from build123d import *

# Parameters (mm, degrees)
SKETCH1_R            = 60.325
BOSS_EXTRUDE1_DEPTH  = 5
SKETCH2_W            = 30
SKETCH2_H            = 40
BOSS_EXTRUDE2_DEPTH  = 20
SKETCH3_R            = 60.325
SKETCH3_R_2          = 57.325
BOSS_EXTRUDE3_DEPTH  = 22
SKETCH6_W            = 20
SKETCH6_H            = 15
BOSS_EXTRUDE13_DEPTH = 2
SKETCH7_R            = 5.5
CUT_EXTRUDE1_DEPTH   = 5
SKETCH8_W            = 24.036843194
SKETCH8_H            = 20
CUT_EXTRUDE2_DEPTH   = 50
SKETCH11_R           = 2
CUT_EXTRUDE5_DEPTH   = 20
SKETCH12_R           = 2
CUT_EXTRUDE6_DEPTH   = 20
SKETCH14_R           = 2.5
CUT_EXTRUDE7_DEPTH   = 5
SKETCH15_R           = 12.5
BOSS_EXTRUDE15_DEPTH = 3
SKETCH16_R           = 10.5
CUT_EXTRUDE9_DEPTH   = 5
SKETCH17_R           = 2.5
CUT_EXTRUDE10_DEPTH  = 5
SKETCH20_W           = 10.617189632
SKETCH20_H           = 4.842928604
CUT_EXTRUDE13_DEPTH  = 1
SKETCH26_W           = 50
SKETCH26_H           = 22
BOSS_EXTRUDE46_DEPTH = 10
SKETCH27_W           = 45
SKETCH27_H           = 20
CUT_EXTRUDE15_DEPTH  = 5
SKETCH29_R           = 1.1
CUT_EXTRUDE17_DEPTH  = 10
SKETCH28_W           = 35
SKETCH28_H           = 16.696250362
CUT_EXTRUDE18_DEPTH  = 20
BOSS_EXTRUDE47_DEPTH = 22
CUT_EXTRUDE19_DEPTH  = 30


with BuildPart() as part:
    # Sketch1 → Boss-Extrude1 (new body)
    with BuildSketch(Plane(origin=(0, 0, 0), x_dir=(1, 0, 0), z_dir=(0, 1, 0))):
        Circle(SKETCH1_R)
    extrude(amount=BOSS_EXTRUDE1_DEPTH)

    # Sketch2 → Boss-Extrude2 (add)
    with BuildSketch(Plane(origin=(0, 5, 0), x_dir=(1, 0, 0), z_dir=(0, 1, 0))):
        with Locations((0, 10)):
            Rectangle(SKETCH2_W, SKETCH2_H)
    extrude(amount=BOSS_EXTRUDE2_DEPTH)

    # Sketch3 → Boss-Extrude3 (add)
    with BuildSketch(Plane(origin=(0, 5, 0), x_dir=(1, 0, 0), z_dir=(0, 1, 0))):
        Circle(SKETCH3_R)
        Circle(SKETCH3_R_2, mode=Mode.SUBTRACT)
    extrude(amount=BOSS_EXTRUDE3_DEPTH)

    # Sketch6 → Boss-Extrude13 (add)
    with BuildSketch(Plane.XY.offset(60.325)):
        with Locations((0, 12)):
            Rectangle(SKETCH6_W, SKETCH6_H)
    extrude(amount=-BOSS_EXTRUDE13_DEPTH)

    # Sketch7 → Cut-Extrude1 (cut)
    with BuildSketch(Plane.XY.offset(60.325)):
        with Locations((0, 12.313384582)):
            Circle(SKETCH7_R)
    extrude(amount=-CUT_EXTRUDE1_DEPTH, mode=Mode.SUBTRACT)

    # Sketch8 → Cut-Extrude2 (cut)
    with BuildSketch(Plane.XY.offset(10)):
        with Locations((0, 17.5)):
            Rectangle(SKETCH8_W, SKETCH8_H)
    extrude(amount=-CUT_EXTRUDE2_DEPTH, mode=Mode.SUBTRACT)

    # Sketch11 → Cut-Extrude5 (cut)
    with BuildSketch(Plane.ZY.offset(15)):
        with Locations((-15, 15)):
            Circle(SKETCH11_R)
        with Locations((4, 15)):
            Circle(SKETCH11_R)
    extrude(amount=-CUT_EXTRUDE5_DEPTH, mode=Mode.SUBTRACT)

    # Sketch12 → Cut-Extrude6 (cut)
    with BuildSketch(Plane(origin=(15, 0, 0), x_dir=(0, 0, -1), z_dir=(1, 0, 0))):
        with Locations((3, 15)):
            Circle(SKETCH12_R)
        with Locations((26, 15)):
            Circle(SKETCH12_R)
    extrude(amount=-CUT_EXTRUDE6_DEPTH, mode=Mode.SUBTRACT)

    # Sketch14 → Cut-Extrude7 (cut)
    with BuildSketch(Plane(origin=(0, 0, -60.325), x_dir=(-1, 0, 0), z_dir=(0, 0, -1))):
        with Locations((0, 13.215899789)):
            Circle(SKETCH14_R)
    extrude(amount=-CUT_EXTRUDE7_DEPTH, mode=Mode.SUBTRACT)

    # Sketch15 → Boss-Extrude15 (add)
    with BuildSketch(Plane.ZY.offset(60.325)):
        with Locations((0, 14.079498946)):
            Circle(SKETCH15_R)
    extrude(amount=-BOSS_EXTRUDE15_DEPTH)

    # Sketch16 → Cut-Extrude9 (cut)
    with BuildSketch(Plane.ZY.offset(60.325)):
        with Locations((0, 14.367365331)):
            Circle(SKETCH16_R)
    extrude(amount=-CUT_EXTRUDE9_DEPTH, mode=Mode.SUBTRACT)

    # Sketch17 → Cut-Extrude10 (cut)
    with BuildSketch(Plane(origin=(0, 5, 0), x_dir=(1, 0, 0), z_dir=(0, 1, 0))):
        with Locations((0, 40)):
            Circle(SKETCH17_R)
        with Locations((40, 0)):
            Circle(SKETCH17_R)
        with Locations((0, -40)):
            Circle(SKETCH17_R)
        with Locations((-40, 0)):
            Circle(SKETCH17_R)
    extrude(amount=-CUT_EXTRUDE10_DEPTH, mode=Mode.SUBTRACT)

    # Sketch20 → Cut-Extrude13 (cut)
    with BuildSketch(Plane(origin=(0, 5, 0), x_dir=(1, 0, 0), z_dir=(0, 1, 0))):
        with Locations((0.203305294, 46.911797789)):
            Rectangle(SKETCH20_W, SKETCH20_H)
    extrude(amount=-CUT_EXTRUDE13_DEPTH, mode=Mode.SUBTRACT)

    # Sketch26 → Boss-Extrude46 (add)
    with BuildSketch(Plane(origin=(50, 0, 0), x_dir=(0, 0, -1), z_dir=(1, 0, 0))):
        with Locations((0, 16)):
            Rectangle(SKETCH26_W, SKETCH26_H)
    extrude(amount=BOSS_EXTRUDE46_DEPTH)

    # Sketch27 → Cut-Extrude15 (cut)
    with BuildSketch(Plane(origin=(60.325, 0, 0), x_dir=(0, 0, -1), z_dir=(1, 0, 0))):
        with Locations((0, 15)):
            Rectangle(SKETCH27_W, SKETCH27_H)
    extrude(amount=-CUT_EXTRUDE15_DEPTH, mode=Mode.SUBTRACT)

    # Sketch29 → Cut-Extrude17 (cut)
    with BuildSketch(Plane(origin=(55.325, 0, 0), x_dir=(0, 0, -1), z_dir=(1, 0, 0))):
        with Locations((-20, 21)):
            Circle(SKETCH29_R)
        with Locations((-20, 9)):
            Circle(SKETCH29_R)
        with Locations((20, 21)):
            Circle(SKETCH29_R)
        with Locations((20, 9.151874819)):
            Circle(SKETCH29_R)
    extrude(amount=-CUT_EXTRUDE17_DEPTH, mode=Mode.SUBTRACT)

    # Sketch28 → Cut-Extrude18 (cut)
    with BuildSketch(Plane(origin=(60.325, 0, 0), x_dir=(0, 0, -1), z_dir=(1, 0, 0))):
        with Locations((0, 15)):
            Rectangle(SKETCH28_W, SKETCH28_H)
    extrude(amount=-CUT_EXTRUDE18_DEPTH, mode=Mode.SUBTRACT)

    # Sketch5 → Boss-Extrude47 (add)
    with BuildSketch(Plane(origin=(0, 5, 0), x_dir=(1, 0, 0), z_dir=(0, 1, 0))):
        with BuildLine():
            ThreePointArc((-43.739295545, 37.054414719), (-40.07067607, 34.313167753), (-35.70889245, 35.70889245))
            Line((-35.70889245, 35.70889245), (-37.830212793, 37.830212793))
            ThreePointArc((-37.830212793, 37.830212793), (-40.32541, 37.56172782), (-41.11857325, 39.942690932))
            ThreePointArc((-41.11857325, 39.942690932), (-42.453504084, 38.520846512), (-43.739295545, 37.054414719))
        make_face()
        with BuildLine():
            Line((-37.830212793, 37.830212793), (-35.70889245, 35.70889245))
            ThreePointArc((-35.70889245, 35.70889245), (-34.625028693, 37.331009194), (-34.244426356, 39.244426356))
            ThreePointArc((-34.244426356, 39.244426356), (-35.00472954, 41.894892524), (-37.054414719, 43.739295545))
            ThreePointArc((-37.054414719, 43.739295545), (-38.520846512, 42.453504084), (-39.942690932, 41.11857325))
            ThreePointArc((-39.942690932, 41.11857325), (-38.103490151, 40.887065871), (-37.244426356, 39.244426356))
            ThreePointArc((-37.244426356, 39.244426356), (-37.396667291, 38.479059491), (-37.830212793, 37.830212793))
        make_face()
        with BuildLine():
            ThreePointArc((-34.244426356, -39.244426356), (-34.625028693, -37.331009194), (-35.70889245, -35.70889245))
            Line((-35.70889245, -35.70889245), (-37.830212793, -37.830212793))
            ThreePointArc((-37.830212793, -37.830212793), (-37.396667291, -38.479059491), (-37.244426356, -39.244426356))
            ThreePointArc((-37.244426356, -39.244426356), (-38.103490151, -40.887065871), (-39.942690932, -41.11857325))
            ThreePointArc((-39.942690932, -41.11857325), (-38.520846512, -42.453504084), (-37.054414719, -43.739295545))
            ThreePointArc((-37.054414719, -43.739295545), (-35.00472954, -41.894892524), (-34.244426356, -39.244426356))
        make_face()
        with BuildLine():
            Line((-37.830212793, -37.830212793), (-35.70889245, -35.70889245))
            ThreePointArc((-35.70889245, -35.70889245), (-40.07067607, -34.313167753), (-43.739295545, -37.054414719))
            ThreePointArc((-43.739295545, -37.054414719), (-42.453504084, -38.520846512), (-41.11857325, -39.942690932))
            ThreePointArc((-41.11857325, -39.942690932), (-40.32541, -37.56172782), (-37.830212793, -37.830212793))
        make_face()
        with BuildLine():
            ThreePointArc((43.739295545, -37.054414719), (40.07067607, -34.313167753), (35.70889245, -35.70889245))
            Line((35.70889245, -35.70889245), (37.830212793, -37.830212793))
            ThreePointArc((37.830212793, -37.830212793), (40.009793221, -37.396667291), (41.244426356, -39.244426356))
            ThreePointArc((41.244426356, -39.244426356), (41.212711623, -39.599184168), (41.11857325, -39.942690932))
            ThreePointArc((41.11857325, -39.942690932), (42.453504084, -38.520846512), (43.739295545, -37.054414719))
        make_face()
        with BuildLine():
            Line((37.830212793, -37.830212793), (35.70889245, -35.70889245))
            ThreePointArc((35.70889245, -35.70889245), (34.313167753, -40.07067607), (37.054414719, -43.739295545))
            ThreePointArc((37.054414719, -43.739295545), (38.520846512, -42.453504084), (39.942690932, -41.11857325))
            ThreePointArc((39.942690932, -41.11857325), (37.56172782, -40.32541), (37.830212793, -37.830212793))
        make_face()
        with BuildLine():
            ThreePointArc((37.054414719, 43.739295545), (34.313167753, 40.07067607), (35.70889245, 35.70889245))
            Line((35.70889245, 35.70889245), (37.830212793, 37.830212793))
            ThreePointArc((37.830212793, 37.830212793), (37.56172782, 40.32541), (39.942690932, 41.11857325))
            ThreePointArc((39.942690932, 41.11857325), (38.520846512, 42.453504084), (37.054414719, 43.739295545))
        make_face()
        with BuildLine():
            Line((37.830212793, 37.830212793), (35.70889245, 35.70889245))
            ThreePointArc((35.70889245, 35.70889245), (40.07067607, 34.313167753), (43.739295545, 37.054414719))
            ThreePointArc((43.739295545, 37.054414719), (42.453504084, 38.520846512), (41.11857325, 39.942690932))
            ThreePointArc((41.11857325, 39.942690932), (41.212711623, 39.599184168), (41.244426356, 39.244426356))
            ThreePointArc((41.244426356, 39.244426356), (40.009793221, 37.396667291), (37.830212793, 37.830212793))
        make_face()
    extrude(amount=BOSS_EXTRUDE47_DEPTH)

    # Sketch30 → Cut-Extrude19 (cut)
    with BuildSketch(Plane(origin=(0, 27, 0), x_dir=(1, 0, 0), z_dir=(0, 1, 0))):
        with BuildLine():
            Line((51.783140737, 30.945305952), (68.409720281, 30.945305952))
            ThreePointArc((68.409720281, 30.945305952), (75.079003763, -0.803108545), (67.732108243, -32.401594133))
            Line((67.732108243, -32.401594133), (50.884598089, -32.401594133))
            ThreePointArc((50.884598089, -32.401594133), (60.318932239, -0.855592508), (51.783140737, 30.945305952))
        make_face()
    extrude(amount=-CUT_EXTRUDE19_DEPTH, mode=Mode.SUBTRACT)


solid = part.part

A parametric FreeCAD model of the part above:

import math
import FreeCAD as App
import Part
import Sketcher
Q = App.Units.Quantity

doc = App.newDocument("Part")
body = doc.addObject("PartDesign::Body", "Body")

# Sketch on XZ plane
sketch1 = body.newObject("Sketcher::SketchObject", "Sketch")
sketch1.AttachmentSupport = (doc.getObject("XZ_Plane"), [""])
sketch1.MapMode = "FlatFace"
sketch1.addGeometry(Part.Circle(App.Vector(0, 0, 0), App.Vector(0, 0, 1), 60.325), False)
sketch1.addConstraint(Sketcher.Constraint("Coincident", 0, 3, -1, 1))
sketch1.addConstraint(Sketcher.Constraint("Diameter", 0, Q("120.65 mm")))
pad1 = body.newObject("PartDesign::Pad", "Pad")
pad1.Profile = sketch1
pad1.Length = 5
pad1.Reversed = True

# Sketch on XZ plane
sketch2 = body.newObject("Sketcher::SketchObject", "Sketch001")
sketch2.AttachmentSupport = (doc.getObject("XZ_Plane"), [""])
sketch2.MapMode = "FlatFace"
sketch2.AttachmentOffset = App.Placement(App.Vector(0, 0, -5), App.Rotation())
sketch2.addGeometry(Part.LineSegment(App.Vector(-15, -30, 0), App.Vector(-15, 10, 0)), False)
sketch2.addGeometry(Part.LineSegment(App.Vector(-15, 10, 0), App.Vector(15, 10, 0)), False)
sketch2.addGeometry(Part.LineSegment(App.Vector(15, 10, 0), App.Vector(15, -30, 0)), False)
sketch2.addGeometry(Part.LineSegment(App.Vector(15, -30, 0), App.Vector(-15, -30, 0)), False)
sketch2.addConstraint(Sketcher.Constraint("Coincident", 0, 2, 1, 1))
sketch2.addConstraint(Sketcher.Constraint("Coincident", 1, 2, 2, 1))
sketch2.addConstraint(Sketcher.Constraint("Coincident", 2, 2, 3, 1))
sketch2.addConstraint(Sketcher.Constraint("Coincident", 3, 2, 0, 1))
sketch2.addConstraint(Sketcher.Constraint("Vertical", 0))
sketch2.addConstraint(Sketcher.Constraint("Horizontal", 1))
sketch2.addConstraint(Sketcher.Constraint("Vertical", 2))
sketch2.addConstraint(Sketcher.Constraint("Horizontal", 3))
sketch2.addConstraint(Sketcher.Constraint("DistanceX", 1, 1, 1, 2, Q("30 mm")))
sketch2.addConstraint(Sketcher.Constraint("DistanceY", 0, 1, 0, 2, Q("40 mm")))
sketch2.addConstraint(Sketcher.Constraint("DistanceX", 0, 2, -1, 1, Q("15 mm")))
sketch2.addConstraint(Sketcher.Constraint("DistanceY", -1, 1, 0, 2, Q("10 mm")))
pad2 = body.newObject("PartDesign::Pad", "Pad001")
pad2.Profile = sketch2
pad2.Length = 20
pad2.Reversed = True

# Sketch on XZ plane
sketch3 = body.newObject("Sketcher::SketchObject", "Sketch002")
sketch3.AttachmentSupport = (doc.getObject("XZ_Plane"), [""])
sketch3.MapMode = "FlatFace"
sketch3.AttachmentOffset = App.Placement(App.Vector(0, 0, -5), App.Rotation())
sketch3.addGeometry(Part.Circle(App.Vector(0, 0, 0), App.Vector(0, 0, 1), 60.325), False)
sketch3.addGeometry(Part.Circle(App.Vector(0, 0, 0), App.Vector(0, 0, 1), 57.325), False)
sketch3.addConstraint(Sketcher.Constraint("Coincident", 0, 3, -1, 1))
sketch3.addConstraint(Sketcher.Constraint("Coincident", 1, 3, -1, 1))
sketch3.addConstraint(Sketcher.Constraint("Diameter", 0, Q("120.65 mm")))
sketch3.addConstraint(Sketcher.Constraint("Diameter", 1, Q("114.65 mm")))
pad3 = body.newObject("PartDesign::Pad", "Pad002")
pad3.Profile = sketch3
pad3.Length = 22
pad3.Reversed = True

# Sketch on XY plane
sketch4 = body.newObject("Sketcher::SketchObject", "Sketch003")
sketch4.AttachmentSupport = (doc.getObject("XY_Plane"), [""])
sketch4.MapMode = "FlatFace"
sketch4.AttachmentOffset = App.Placement(App.Vector(0, 0, 60.325), App.Rotation())
sketch4.addGeometry(Part.LineSegment(App.Vector(-10, 19.5, 0), App.Vector(-10, 4.5, 0)), False)
sketch4.addGeometry(Part.LineSegment(App.Vector(-10, 4.5, 0), App.Vector(10, 4.5, 0)), False)
sketch4.addGeometry(Part.LineSegment(App.Vector(10, 4.5, 0), App.Vector(10, 19.5, 0)), False)
sketch4.addGeometry(Part.LineSegment(App.Vector(10, 19.5, 0), App.Vector(-10, 19.5, 0)), False)
sketch4.addConstraint(Sketcher.Constraint("Coincident", 0, 2, 1, 1))
sketch4.addConstraint(Sketcher.Constraint("Coincident", 1, 2, 2, 1))
sketch4.addConstraint(Sketcher.Constraint("Coincident", 2, 2, 3, 1))
sketch4.addConstraint(Sketcher.Constraint("Coincident", 3, 2, 0, 1))
sketch4.addConstraint(Sketcher.Constraint("Vertical", 0))
sketch4.addConstraint(Sketcher.Constraint("Horizontal", 1))
sketch4.addConstraint(Sketcher.Constraint("Vertical", 2))
sketch4.addConstraint(Sketcher.Constraint("Horizontal", 3))
sketch4.addConstraint(Sketcher.Constraint("DistanceX", 1, 1, 1, 2, Q("20 mm")))
sketch4.addConstraint(Sketcher.Constraint("DistanceY", 0, 2, 0, 1, Q("15 mm")))
sketch4.addConstraint(Sketcher.Constraint("DistanceX", 0, 2, -1, 1, Q("10 mm")))
sketch4.addConstraint(Sketcher.Constraint("DistanceY", -1, 1, 0, 2, Q("4.5 mm")))
pad4 = body.newObject("PartDesign::Pad", "Pad003")
pad4.Profile = sketch4
pad4.Length = 2
pad4.Reversed = True

# Sketch on XY plane
sketch5 = body.newObject("Sketcher::SketchObject", "Sketch004")
sketch5.AttachmentSupport = (doc.getObject("XY_Plane"), [""])
sketch5.MapMode = "FlatFace"
sketch5.AttachmentOffset = App.Placement(App.Vector(0, 0, 60.325), App.Rotation())
sketch5.addGeometry(Part.Circle(App.Vector(0, 12.313385, 0), App.Vector(0, 0, 1), 5.5), False)
sketch5.addConstraint(Sketcher.Constraint("PointOnObject", 0, 3, -2))
sketch5.addConstraint(Sketcher.Constraint("Diameter", 0, Q("11 mm")))
sketch5.addConstraint(Sketcher.Constraint("DistanceY", -1, 1, 0, 3, Q("12.313385 mm")))
pocket1 = body.newObject("PartDesign::Pocket", "Pocket")
pocket1.Profile = sketch5
pocket1.Length = 5

# Sketch on XY plane
sketch6 = body.newObject("Sketcher::SketchObject", "Sketch005")
sketch6.AttachmentSupport = (doc.getObject("XY_Plane"), [""])
sketch6.MapMode = "FlatFace"
sketch6.AttachmentOffset = App.Placement(App.Vector(0, 0, 10), App.Rotation())
sketch6.addGeometry(Part.LineSegment(App.Vector(-12.018422, 27.5, 0), App.Vector(-12.018422, 7.5, 0)), False)
sketch6.addGeometry(Part.LineSegment(App.Vector(-12.018422, 7.5, 0), App.Vector(12.018422, 7.5, 0)), False)
sketch6.addGeometry(Part.LineSegment(App.Vector(12.018422, 7.5, 0), App.Vector(12.018422, 27.5, 0)), False)
sketch6.addGeometry(Part.LineSegment(App.Vector(12.018422, 27.5, 0), App.Vector(-12.018422, 27.5, 0)), False)
sketch6.addConstraint(Sketcher.Constraint("Coincident", 0, 2, 1, 1))
sketch6.addConstraint(Sketcher.Constraint("Coincident", 1, 2, 2, 1))
sketch6.addConstraint(Sketcher.Constraint("Coincident", 2, 2, 3, 1))
sketch6.addConstraint(Sketcher.Constraint("Coincident", 3, 2, 0, 1))
sketch6.addConstraint(Sketcher.Constraint("Vertical", 0))
sketch6.addConstraint(Sketcher.Constraint("Horizontal", 1))
sketch6.addConstraint(Sketcher.Constraint("Vertical", 2))
sketch6.addConstraint(Sketcher.Constraint("Horizontal", 3))
sketch6.addConstraint(Sketcher.Constraint("DistanceY", 0, 2, 0, 1, Q("20 mm")))
sketch6.addConstraint(Sketcher.Constraint("DistanceY", -1, 1, 0, 2, Q("7.5 mm")))
sketch6.addConstraint(Sketcher.Constraint("DistanceX", 1, 1, 1, 2, Q("24.036843 mm")))
sketch6.addConstraint(Sketcher.Constraint("DistanceX", 0, 2, -1, 1, Q("12.018422 mm")))
pocket2 = body.newObject("PartDesign::Pocket", "Pocket001")
pocket2.Profile = sketch6
pocket2.Length = 50

# Sketch on YZ plane
sketch7 = body.newObject("Sketcher::SketchObject", "Sketch006")
sketch7.AttachmentSupport = (doc.getObject("YZ_Plane"), [""])
sketch7.MapMode = "FlatFace"
sketch7.AttachmentOffset = App.Placement(App.Vector(0, 0, -15), App.Rotation())
sketch7.addGeometry(Part.Circle(App.Vector(15, -15, 0), App.Vector(0, 0, 1), 2), False)
sketch7.addGeometry(Part.Circle(App.Vector(15, 4, 0), App.Vector(0, 0, 1), 2), False)
sketch7.addConstraint(Sketcher.Constraint("Equal", 0, 1))
sketch7.addConstraint(Sketcher.Constraint("Vertical", 0, 3, 1, 3))
sketch7.addConstraint(Sketcher.Constraint("Diameter", 0, Q("4 mm")))
sketch7.addConstraint(Sketcher.Constraint("DistanceX", -1, 1, 0, 3, Q("15 mm")))
sketch7.addConstraint(Sketcher.Constraint("DistanceY", 0, 3, -1, 1, Q("15 mm")))
sketch7.addConstraint(Sketcher.Constraint("DistanceY", -1, 1, 1, 3, Q("4 mm")))
pocket3 = body.newObject("PartDesign::Pocket", "Pocket002")
pocket3.Profile = sketch7
pocket3.Length = 20
pocket3.Reversed = True

# Sketch on YZ plane
sketch8 = body.newObject("Sketcher::SketchObject", "Sketch007")
sketch8.AttachmentSupport = (doc.getObject("YZ_Plane"), [""])
sketch8.MapMode = "FlatFace"
sketch8.AttachmentOffset = App.Placement(App.Vector(0, 0, 15), App.Rotation())
sketch8.addGeometry(Part.Circle(App.Vector(15, -3, 0), App.Vector(0, 0, 1), 2), False)
sketch8.addGeometry(Part.Circle(App.Vector(15, -26, 0), App.Vector(0, 0, 1), 2), False)
sketch8.addConstraint(Sketcher.Constraint("Equal", 0, 1))
sketch8.addConstraint(Sketcher.Constraint("Vertical", 0, 3, 1, 3))
sketch8.addConstraint(Sketcher.Constraint("Diameter", 0, Q("4 mm")))
sketch8.addConstraint(Sketcher.Constraint("DistanceX", -1, 1, 0, 3, Q("15 mm")))
sketch8.addConstraint(Sketcher.Constraint("DistanceY", 0, 3, -1, 1, Q("3 mm")))
sketch8.addConstraint(Sketcher.Constraint("DistanceY", 1, 3, -1, 1, Q("26 mm")))
pocket4 = body.newObject("PartDesign::Pocket", "Pocket003")
pocket4.Profile = sketch8
pocket4.Length = 20

# Sketch on XY plane
sketch9 = body.newObject("Sketcher::SketchObject", "Sketch008")
sketch9.AttachmentSupport = (doc.getObject("XY_Plane"), [""])
sketch9.MapMode = "FlatFace"
sketch9.AttachmentOffset = App.Placement(App.Vector(0, 0, -60.325), App.Rotation())
sketch9.addGeometry(Part.Circle(App.Vector(0, 13.2159, 0), App.Vector(0, 0, 1), 2.5), False)
sketch9.addConstraint(Sketcher.Constraint("PointOnObject", 0, 3, -2))
sketch9.addConstraint(Sketcher.Constraint("Diameter", 0, Q("5 mm")))
sketch9.addConstraint(Sketcher.Constraint("DistanceY", -1, 1, 0, 3, Q("13.2159 mm")))
pocket5 = body.newObject("PartDesign::Pocket", "Pocket004")
pocket5.Profile = sketch9
pocket5.Length = 5
pocket5.Reversed = True

# Sketch on YZ plane
sketch10 = body.newObject("Sketcher::SketchObject", "Sketch009")
sketch10.AttachmentSupport = (doc.getObject("YZ_Plane"), [""])
sketch10.MapMode = "FlatFace"
sketch10.AttachmentOffset = App.Placement(App.Vector(0, 0, -60.325), App.Rotation())
sketch10.addGeometry(Part.Circle(App.Vector(14.079499, 0, 0), App.Vector(0, 0, 1), 12.5), False)
sketch10.addConstraint(Sketcher.Constraint("PointOnObject", 0, 3, -1))
sketch10.addConstraint(Sketcher.Constraint("Diameter", 0, Q("25 mm")))
sketch10.addConstraint(Sketcher.Constraint("DistanceX", -1, 1, 0, 3, Q("14.079499 mm")))
pad5 = body.newObject("PartDesign::Pad", "Pad004")
pad5.Profile = sketch10
pad5.Length = 3

# Sketch on YZ plane
sketch11 = body.newObject("Sketcher::SketchObject", "Sketch010")
sketch11.AttachmentSupport = (doc.getObject("YZ_Plane"), [""])
sketch11.MapMode = "FlatFace"
sketch11.AttachmentOffset = App.Placement(App.Vector(0, 0, -60.325), App.Rotation())
sketch11.addGeometry(Part.Circle(App.Vector(14.367365, 0, 0), App.Vector(0, 0, 1), 10.5), False)
sketch11.addConstraint(Sketcher.Constraint("PointOnObject", 0, 3, -1))
sketch11.addConstraint(Sketcher.Constraint("Diameter", 0, Q("21 mm")))
sketch11.addConstraint(Sketcher.Constraint("DistanceX", -1, 1, 0, 3, Q("14.367365 mm")))
pocket6 = body.newObject("PartDesign::Pocket", "Pocket005")
pocket6.Profile = sketch11
pocket6.Length = 5
pocket6.Reversed = True

# Sketch on XZ plane
sketch12 = body.newObject("Sketcher::SketchObject", "Sketch011")
sketch12.AttachmentSupport = (doc.getObject("XZ_Plane"), [""])
sketch12.MapMode = "FlatFace"
sketch12.AttachmentOffset = App.Placement(App.Vector(0, 0, -5), App.Rotation())
sketch12.addGeometry(Part.Circle(App.Vector(0, -40, 0), App.Vector(0, 0, 1), 2.5), False)
sketch12.addGeometry(Part.Circle(App.Vector(40, 0, 0), App.Vector(0, 0, 1), 2.5), False)
sketch12.addGeometry(Part.Circle(App.Vector(0, 40, 0), App.Vector(0, 0, 1), 2.5), False)
sketch12.addGeometry(Part.Circle(App.Vector(-40, 0, 0), App.Vector(0, 0, 1), 2.5), False)
sketch12.addConstraint(Sketcher.Constraint("Equal", 0, 1))
sketch12.addConstraint(Sketcher.Constraint("Equal", 1, 2))
sketch12.addConstraint(Sketcher.Constraint("Equal", 2, 3))
sketch12.addConstraint(Sketcher.Constraint("Symmetric", 0, 3, 2, 3, -1, 1))
sketch12.addConstraint(Sketcher.Constraint("Symmetric", 1, 3, 3, 3, -1, 1))
sketch12.addConstraint(Sketcher.Constraint("PointOnObject", 0, 3, -2))
sketch12.addConstraint(Sketcher.Constraint("PointOnObject", 1, 3, -1))
sketch12.addConstraint(Sketcher.Constraint("Diameter", 0, Q("5 mm")))
sketch12.addConstraint(Sketcher.Constraint("DistanceY", 0, 3, -1, 1, Q("40 mm")))
sketch12.addConstraint(Sketcher.Constraint("DistanceX", -1, 1, 1, 3, Q("40 mm")))
pocket7 = body.newObject("PartDesign::Pocket", "Pocket006")
pocket7.Profile = sketch12
pocket7.Length = 5
pocket7.Reversed = True

# Sketch on XZ plane
sketch13 = body.newObject("Sketcher::SketchObject", "Sketch012")
sketch13.AttachmentSupport = (doc.getObject("XZ_Plane"), [""])
sketch13.MapMode = "FlatFace"
sketch13.AttachmentOffset = App.Placement(App.Vector(0, 0, -5), App.Rotation())
sketch13.addGeometry(Part.LineSegment(App.Vector(-5.10529, -49.333262, 0), App.Vector(-5.10529, -44.490333, 0)), False)
sketch13.addGeometry(Part.LineSegment(App.Vector(-5.10529, -44.490333, 0), App.Vector(5.5119, -44.490333, 0)), False)
sketch13.addGeometry(Part.LineSegment(App.Vector(5.5119, -44.490333, 0), App.Vector(5.5119, -49.333262, 0)), False)
sketch13.addGeometry(Part.LineSegment(App.Vector(5.5119, -49.333262, 0), App.Vector(-5.10529, -49.333262, 0)), False)
sketch13.addConstraint(Sketcher.Constraint("Coincident", 0, 2, 1, 1))
sketch13.addConstraint(Sketcher.Constraint("Coincident", 1, 2, 2, 1))
sketch13.addConstraint(Sketcher.Constraint("Coincident", 2, 2, 3, 1))
sketch13.addConstraint(Sketcher.Constraint("Coincident", 3, 2, 0, 1))
sketch13.addConstraint(Sketcher.Constraint("Vertical", 0))
sketch13.addConstraint(Sketcher.Constraint("Horizontal", 1))
sketch13.addConstraint(Sketcher.Constraint("Vertical", 2))
sketch13.addConstraint(Sketcher.Constraint("Horizontal", 3))
sketch13.addConstraint(Sketcher.Constraint("DistanceX", 1, 1, 1, 2, Q("10.61719 mm")))
sketch13.addConstraint(Sketcher.Constraint("DistanceY", 0, 1, 0, 2, Q("4.842929 mm")))
sketch13.addConstraint(Sketcher.Constraint("DistanceX", -1, 1, 1, 2, Q("5.5119 mm")))
sketch13.addConstraint(Sketcher.Constraint("DistanceY", 0, 2, -1, 1, Q("44.490333 mm")))
pocket8 = body.newObject("PartDesign::Pocket", "Pocket007")
pocket8.Profile = sketch13
pocket8.Length = 1
pocket8.Reversed = True

# Sketch on YZ plane
sketch14 = body.newObject("Sketcher::SketchObject", "Sketch013")
sketch14.AttachmentSupport = (doc.getObject("YZ_Plane"), [""])
sketch14.MapMode = "FlatFace"
sketch14.AttachmentOffset = App.Placement(App.Vector(0, 0, 50), App.Rotation())
sketch14.addGeometry(Part.LineSegment(App.Vector(27, 25, 0), App.Vector(5, 25, 0)), False)
sketch14.addGeometry(Part.LineSegment(App.Vector(5, 25, 0), App.Vector(5, -25, 0)), False)
sketch14.addGeometry(Part.LineSegment(App.Vector(5, -25, 0), App.Vector(27, -25, 0)), False)
sketch14.addGeometry(Part.LineSegment(App.Vector(27, -25, 0), App.Vector(27, 25, 0)), False)
sketch14.addConstraint(Sketcher.Constraint("Coincident", 0, 2, 1, 1))
sketch14.addConstraint(Sketcher.Constraint("Coincident", 1, 2, 2, 1))
sketch14.addConstraint(Sketcher.Constraint("Coincident", 2, 2, 3, 1))
sketch14.addConstraint(Sketcher.Constraint("Coincident", 3, 2, 0, 1))
sketch14.addConstraint(Sketcher.Constraint("Horizontal", 0))
sketch14.addConstraint(Sketcher.Constraint("Vertical", 1))
sketch14.addConstraint(Sketcher.Constraint("Horizontal", 2))
sketch14.addConstraint(Sketcher.Constraint("Vertical", 3))
sketch14.addConstraint(Sketcher.Constraint("DistanceX", 0, 2, 0, 1, Q("22 mm")))
sketch14.addConstraint(Sketcher.Constraint("DistanceY", 1, 2, 1, 1, Q("50 mm")))
sketch14.addConstraint(Sketcher.Constraint("DistanceX", -1, 1, 0, 2, Q("5 mm")))
sketch14.addConstraint(Sketcher.Constraint("DistanceY", -1, 1, 0, 2, Q("25 mm")))
pad6 = body.newObject("PartDesign::Pad", "Pad005")
pad6.Profile = sketch14
pad6.Length = 10

# Sketch on YZ plane
sketch15 = body.newObject("Sketcher::SketchObject", "Sketch014")
sketch15.AttachmentSupport = (doc.getObject("YZ_Plane"), [""])
sketch15.MapMode = "FlatFace"
sketch15.AttachmentOffset = App.Placement(App.Vector(0, 0, 60.325), App.Rotation())
sketch15.addGeometry(Part.LineSegment(App.Vector(25, 22.5, 0), App.Vector(5, 22.5, 0)), False)
sketch15.addGeometry(Part.LineSegment(App.Vector(5, 22.5, 0), App.Vector(5, -22.5, 0)), False)
sketch15.addGeometry(Part.LineSegment(App.Vector(5, -22.5, 0), App.Vector(25, -22.5, 0)), False)
sketch15.addGeometry(Part.LineSegment(App.Vector(25, -22.5, 0), App.Vector(25, 22.5, 0)), False)
sketch15.addConstraint(Sketcher.Constraint("Coincident", 0, 2, 1, 1))
sketch15.addConstraint(Sketcher.Constraint("Coincident", 1, 2, 2, 1))
sketch15.addConstraint(Sketcher.Constraint("Coincident", 2, 2, 3, 1))
sketch15.addConstraint(Sketcher.Constraint("Coincident", 3, 2, 0, 1))
sketch15.addConstraint(Sketcher.Constraint("Horizontal", 0))
sketch15.addConstraint(Sketcher.Constraint("Vertical", 1))
sketch15.addConstraint(Sketcher.Constraint("Horizontal", 2))
sketch15.addConstraint(Sketcher.Constraint("Vertical", 3))
sketch15.addConstraint(Sketcher.Constraint("DistanceX", 0, 2, 0, 1, Q("20 mm")))
sketch15.addConstraint(Sketcher.Constraint("DistanceY", 1, 2, 1, 1, Q("45 mm")))
sketch15.addConstraint(Sketcher.Constraint("DistanceX", -1, 1, 0, 2, Q("5 mm")))
sketch15.addConstraint(Sketcher.Constraint("DistanceY", -1, 1, 0, 2, Q("22.5 mm")))
pocket9 = body.newObject("PartDesign::Pocket", "Pocket008")
pocket9.Profile = sketch15
pocket9.Length = 5

# Sketch on YZ plane
sketch16 = body.newObject("Sketcher::SketchObject", "Sketch015")
sketch16.AttachmentSupport = (doc.getObject("YZ_Plane"), [""])
sketch16.MapMode = "FlatFace"
sketch16.AttachmentOffset = App.Placement(App.Vector(0, 0, 55.325), App.Rotation())
sketch16.addGeometry(Part.Circle(App.Vector(21, 20, 0), App.Vector(0, 0, 1), 1.1), False)
sketch16.addGeometry(Part.Circle(App.Vector(9, 20, 0), App.Vector(0, 0, 1), 1.1), False)
sketch16.addGeometry(Part.Circle(App.Vector(21, -20, 0), App.Vector(0, 0, 1), 1.1), False)
sketch16.addGeometry(Part.Circle(App.Vector(9.151875, -20, 0), App.Vector(0, 0, 1), 1.1), False)
sketch16.addConstraint(Sketcher.Constraint("Equal", 0, 1))
sketch16.addConstraint(Sketcher.Constraint("Equal", 1, 2))
sketch16.addConstraint(Sketcher.Constraint("Equal", 2, 3))
sketch16.addConstraint(Sketcher.Constraint("Symmetric", 0, 3, 2, 3, -1))
sketch16.addConstraint(Sketcher.Constraint("Horizontal", 0, 3, 1, 3))
sketch16.addConstraint(Sketcher.Constraint("Horizontal", 2, 3, 3, 3))
sketch16.addConstraint(Sketcher.Constraint("Diameter", 0, Q("2.2 mm")))
sketch16.addConstraint(Sketcher.Constraint("DistanceX", -1, 1, 0, 3, Q("21 mm")))
sketch16.addConstraint(Sketcher.Constraint("DistanceY", -1, 1, 0, 3, Q("20 mm")))
sketch16.addConstraint(Sketcher.Constraint("DistanceX", -1, 1, 1, 3, Q("9 mm")))
sketch16.addConstraint(Sketcher.Constraint("DistanceX", -1, 1, 3, 3, Q("9.151875 mm")))
pocket10 = body.newObject("PartDesign::Pocket", "Pocket009")
pocket10.Profile = sketch16
pocket10.Length = 10

# Sketch on YZ plane
sketch17 = body.newObject("Sketcher::SketchObject", "Sketch016")
sketch17.AttachmentSupport = (doc.getObject("YZ_Plane"), [""])
sketch17.MapMode = "FlatFace"
sketch17.AttachmentOffset = App.Placement(App.Vector(0, 0, 60.325), App.Rotation())
sketch17.addGeometry(Part.LineSegment(App.Vector(23.348125, 17.5, 0), App.Vector(6.651875, 17.5, 0)), False)
sketch17.addGeometry(Part.LineSegment(App.Vector(6.651875, 17.5, 0), App.Vector(6.651875, -17.5, 0)), False)
sketch17.addGeometry(Part.LineSegment(App.Vector(6.651875, -17.5, 0), App.Vector(23.348125, -17.5, 0)), False)
sketch17.addGeometry(Part.LineSegment(App.Vector(23.348125, -17.5, 0), App.Vector(23.348125, 17.5, 0)), False)
sketch17.addConstraint(Sketcher.Constraint("Coincident", 0, 2, 1, 1))
sketch17.addConstraint(Sketcher.Constraint("Coincident", 1, 2, 2, 1))
sketch17.addConstraint(Sketcher.Constraint("Coincident", 2, 2, 3, 1))
sketch17.addConstraint(Sketcher.Constraint("Coincident", 3, 2, 0, 1))
sketch17.addConstraint(Sketcher.Constraint("Horizontal", 0))
sketch17.addConstraint(Sketcher.Constraint("Vertical", 1))
sketch17.addConstraint(Sketcher.Constraint("Horizontal", 2))
sketch17.addConstraint(Sketcher.Constraint("Vertical", 3))
sketch17.addConstraint(Sketcher.Constraint("DistanceY", 1, 2, 1, 1, Q("35 mm")))
sketch17.addConstraint(Sketcher.Constraint("DistanceY", -1, 1, 0, 2, Q("17.5 mm")))
sketch17.addConstraint(Sketcher.Constraint("DistanceX", 0, 2, 0, 1, Q("16.69625 mm")))
sketch17.addConstraint(Sketcher.Constraint("DistanceX", -1, 1, 0, 2, Q("6.651875 mm")))
pocket11 = body.newObject("PartDesign::Pocket", "Pocket010")
pocket11.Profile = sketch17
pocket11.Length = 20

# Sketch on XZ plane
sketch18 = body.newObject("Sketcher::SketchObject", "Sketch017")
sketch18.AttachmentSupport = (doc.getObject("XZ_Plane"), [""])
sketch18.MapMode = "FlatFace"
sketch18.AttachmentOffset = App.Placement(App.Vector(0, 0, -5), App.Rotation())
sketch18.addGeometry(Part.ArcOfCircle(Part.Circle(App.Vector(-39.244426, -39.244426, 0), App.Vector(0, 0, 1), 2), math.radians(45), math.radians(200.434251)), False)
sketch18.addGeometry(Part.ArcOfCircle(Part.Circle(App.Vector(0, 0, 0), App.Vector(0, 0, 1), 57.324999), math.radians(-139.729886), math.radians(-135.83108)), False)
sketch18.addGeometry(Part.ArcOfCircle(Part.Circle(App.Vector(-39.244426, -39.244426, 0), App.Vector(0, 0, 1), 5), math.radians(45), math.radians(154.023509)), False)
sketch18.addGeometry(Part.ArcOfCircle(Part.Circle(App.Vector(-39.244426, -39.244426, 0), App.Vector(0, 0, 1), 5), math.radians(0), math.radians(45)), False)
sketch18.addGeometry(Part.ArcOfCircle(Part.Circle(App.Vector(-39.244426, -39.244426, 0), App.Vector(0, 0, 1), 5), math.radians(-64.023509), math.radians(0)), False)
sketch18.addGeometry(Part.ArcOfCircle(Part.Circle(App.Vector(0, 0, 0), App.Vector(0, 0, 1), 57.324999), math.radians(-134.16892), math.radians(-130.270114)), False)
sketch18.addGeometry(Part.ArcOfCircle(Part.Circle(App.Vector(-39.244426, -39.244426, 0), App.Vector(0, 0, 1), 2), math.radians(-110.434251), math.radians(0)), False)
sketch18.addGeometry(Part.ArcOfCircle(Part.Circle(App.Vector(-39.244426, -39.244426, 0), App.Vector(0, 0, 1), 2), math.radians(0), math.radians(45)), False)
sketch18.addGeometry(Part.ArcOfCircle(Part.Circle(App.Vector(0, 0, 0), App.Vector(0, 0, 1), 57.324999), math.radians(130.270114), math.radians(134.16892)), False)
sketch18.addGeometry(Part.ArcOfCircle(Part.Circle(App.Vector(-39.244426, 39.244426, 0), App.Vector(0, 0, 1), 5), math.radians(0), math.radians(64.023509)), False)
sketch18.addGeometry(Part.ArcOfCircle(Part.Circle(App.Vector(-39.244426, 39.244426, 0), App.Vector(0, 0, 1), 5), math.radians(-45), math.radians(0)), False)
sketch18.addGeometry(Part.ArcOfCircle(Part.Circle(App.Vector(-39.244426, 39.244426, 0), App.Vector(0, 0, 1), 5), math.radians(-154.023509), math.radians(-45)), False)
sketch18.addGeometry(Part.ArcOfCircle(Part.Circle(App.Vector(0, 0, 0), App.Vector(0, 0, 1), 57.324999), math.radians(135.83108), math.radians(139.729886)), False)
sketch18.addGeometry(Part.ArcOfCircle(Part.Circle(App.Vector(-39.244426, 39.244426, 0), App.Vector(0, 0, 1), 2), math.radians(159.565749), math.radians(315)), False)
sketch18.addGeometry(Part.ArcOfCircle(Part.Circle(App.Vector(-39.244426, 39.244426, 0), App.Vector(0, 0, 1), 2), math.radians(-45), math.radians(0)), False)
sketch18.addGeometry(Part.ArcOfCircle(Part.Circle(App.Vector(-39.244426, 39.244426, 0), App.Vector(0, 0, 1), 2), math.radians(0), math.radians(110.434251)), False)
sketch18.addGeometry(Part.ArcOfCircle(Part.Circle(App.Vector(39.244426, 39.244426, 0), App.Vector(0, 0, 1), 2), math.radians(0), math.radians(20.434251)), False)
sketch18.addGeometry(Part.ArcOfCircle(Part.Circle(App.Vector(0, 0, 0), App.Vector(0, 0, 1), 57.324999), math.radians(40.270114), math.radians(44.16892)), False)
sketch18.addGeometry(Part.ArcOfCircle(Part.Circle(App.Vector(39.244426, 39.244426, 0), App.Vector(0, 0, 1), 5), math.radians(-135), math.radians(-25.976491)), False)
sketch18.addGeometry(Part.ArcOfCircle(Part.Circle(App.Vector(39.244426, 39.244426, 0), App.Vector(0, 0, 1), 5), math.radians(115.976491), math.radians(225)), False)
sketch18.addGeometry(Part.ArcOfCircle(Part.Circle(App.Vector(0, 0, 0), App.Vector(0, 0, 1), 57.324999), math.radians(45.83108), math.radians(49.729886)), False)
sketch18.addGeometry(Part.ArcOfCircle(Part.Circle(App.Vector(39.244426, 39.244426, 0), App.Vector(0, 0, 1), 2), math.radians(69.565749), math.radians(225)), False)
sketch18.addGeometry(Part.ArcOfCircle(Part.Circle(App.Vector(39.244426, 39.244426, 0), App.Vector(0, 0, 1), 2), math.radians(-135), math.radians(0)), False)
sketch18.addGeometry(Part.ArcOfCircle(Part.Circle(App.Vector(39.244426, -39.244426, 0), App.Vector(0, 0, 1), 2), math.radians(135), math.radians(290.434251)), False)
sketch18.addGeometry(Part.ArcOfCircle(Part.Circle(App.Vector(0, 0, 0), App.Vector(0, 0, 1), 57.324999), math.radians(-49.729886), math.radians(-45.83108)), False)
sketch18.addGeometry(Part.ArcOfCircle(Part.Circle(App.Vector(39.244426, -39.244426, 0), App.Vector(0, 0, 1), 5), math.radians(135), math.radians(244.023509)), False)
sketch18.addGeometry(Part.ArcOfCircle(Part.Circle(App.Vector(39.244426, -39.244426, 0), App.Vector(0, 0, 1), 5), math.radians(25.976491), math.radians(135)), False)
sketch18.addGeometry(Part.ArcOfCircle(Part.Circle(App.Vector(0, 0, 0), App.Vector(0, 0, 1), 57.324999), math.radians(-44.16892), math.radians(-40.270114)), False)
sketch18.addGeometry(Part.ArcOfCircle(Part.Circle(App.Vector(39.244426, -39.244426, 0), App.Vector(0, 0, 1), 2), math.radians(-20.434251), math.radians(0)), False)
sketch18.addGeometry(Part.ArcOfCircle(Part.Circle(App.Vector(39.244426, -39.244426, 0), App.Vector(0, 0, 1), 2), math.radians(0), math.radians(135)), False)
sketch18.addConstraint(Sketcher.Constraint("Coincident", 0, 2, 1, 2))
sketch18.addConstraint(Sketcher.Constraint("Coincident", 1, 1, 2, 2))
sketch18.addConstraint(Sketcher.Constraint("Tangent", 2, 1, 3, 2))
sketch18.addConstraint(Sketcher.Constraint("Tangent", 3, 1, 4, 2))
sketch18.addConstraint(Sketcher.Constraint("Coincident", 4, 1, 5, 2))
sketch18.addConstraint(Sketcher.Constraint("Coincident", 5, 1, 6, 1))
sketch18.addConstraint(Sketcher.Constraint("Tangent", 6, 2, 7, 1))
sketch18.addConstraint(Sketcher.Constraint("Tangent", 7, 2, 0, 1))
sketch18.addConstraint(Sketcher.Constraint("Coincident", 8, 1, 9, 2))
sketch18.addConstraint(Sketcher.Constraint("Tangent", 9, 1, 10, 2))
sketch18.addConstraint(Sketcher.Constraint("Tangent", 10, 1, 11, 2))
sketch18.addConstraint(Sketcher.Constraint("Coincident", 11, 1, 12, 2))
sketch18.addConstraint(Sketcher.Constraint("Coincident", 12, 1, 13, 1))
sketch18.addConstraint(Sketcher.Constraint("Tangent", 13, 2, 14, 1))
sketch18.addConstraint(Sketcher.Constraint("Tangent", 14, 2, 15, 1))
sketch18.addConstraint(Sketcher.Constraint("Coincident", 15, 2, 8, 2))
sketch18.addConstraint(Sketcher.Constraint("Coincident", 16, 2, 17, 2))
sketch18.addConstraint(Sketcher.Constraint("Coincident", 17, 1, 18, 2))
sketch18.addConstraint(Sketcher.Constraint("Tangent", 18, 1, 19, 2))
sketch18.addConstraint(Sketcher.Constraint("Coincident", 19, 1, 20, 2))
sketch18.addConstraint(Sketcher.Constraint("Coincident", 20, 1, 21, 1))
sketch18.addConstraint(Sketcher.Constraint("Tangent", 21, 2, 22, 1))
sketch18.addConstraint(Sketcher.Constraint("Tangent", 22, 2, 16, 1))
sketch18.addConstraint(Sketcher.Constraint("Coincident", 23, 2, 24, 2))
sketch18.addConstraint(Sketcher.Constraint("Coincident", 24, 1, 25, 2))
sketch18.addConstraint(Sketcher.Constraint("Tangent", 25, 1, 26, 2))
sketch18.addConstraint(Sketcher.Constraint("Coincident", 26, 1, 27, 2))
sketch18.addConstraint(Sketcher.Constraint("Coincident", 27, 1, 28, 1))
sketch18.addConstraint(Sketcher.Constraint("Tangent", 28, 2, 29, 1))
sketch18.addConstraint(Sketcher.Constraint("Tangent", 29, 2, 23, 1))
sketch18.addConstraint(Sketcher.Constraint("Coincident", 1, 3, -1, 1))
sketch18.addConstraint(Sketcher.Constraint("Coincident", 5, 3, -1, 1))
sketch18.addConstraint(Sketcher.Constraint("Coincident", 8, 3, -1, 1))
sketch18.addConstraint(Sketcher.Constraint("Coincident", 12, 3, -1, 1))
sketch18.addConstraint(Sketcher.Constraint("Coincident", 17, 3, -1, 1))
sketch18.addConstraint(Sketcher.Constraint("Coincident", 20, 3, -1, 1))
sketch18.addConstraint(Sketcher.Constraint("Coincident", 24, 3, -1, 1))
sketch18.addConstraint(Sketcher.Constraint("Coincident", 27, 3, -1, 1))
sketch18.addConstraint(Sketcher.Constraint("Coincident", 2, 3, 0, 3))
sketch18.addConstraint(Sketcher.Constraint("Coincident", 4, 3, 0, 3))
sketch18.addConstraint(Sketcher.Constraint("Coincident", 6, 3, 0, 3))
sketch18.addConstraint(Sketcher.Constraint("Coincident", 11, 3, 9, 3))
sketch18.addConstraint(Sketcher.Constraint("Coincident", 13, 3, 9, 3))
sketch18.addConstraint(Sketcher.Constraint("Coincident", 15, 3, 9, 3))
sketch18.addConstraint(Sketcher.Constraint("Coincident", 18, 3, 16, 3))
sketch18.addConstraint(Sketcher.Constraint("Coincident", 21, 3, 16, 3))
sketch18.addConstraint(Sketcher.Constraint("Coincident", 25, 3, 23, 3))
sketch18.addConstraint(Sketcher.Constraint("Coincident", 28, 3, 23, 3))
sketch18.addConstraint(Sketcher.Constraint("Equal", 1, 5))
sketch18.addConstraint(Sketcher.Constraint("Equal", 5, 8))
sketch18.addConstraint(Sketcher.Constraint("Equal", 4, 9))
sketch18.addConstraint(Sketcher.Constraint("Equal", 8, 12))
sketch18.addConstraint(Sketcher.Constraint("Equal", 7, 13))
sketch18.addConstraint(Sketcher.Constraint("Equal", 15, 16))
sketch18.addConstraint(Sketcher.Constraint("Equal", 12, 17))
sketch18.addConstraint(Sketcher.Constraint("Equal", 11, 18))
sketch18.addConstraint(Sketcher.Constraint("Equal", 18, 19))
sketch18.addConstraint(Sketcher.Constraint("Equal", 17, 20))
sketch18.addConstraint(Sketcher.Constraint("Equal", 22, 23))
sketch18.addConstraint(Sketcher.Constraint("Equal", 20, 24))
sketch18.addConstraint(Sketcher.Constraint("Equal", 19, 25))
sketch18.addConstraint(Sketcher.Constraint("Equal", 25, 26))
sketch18.addConstraint(Sketcher.Constraint("Equal", 24, 27))
sketch18.addConstraint(Sketcher.Constraint("Symmetric", 0, 3, 16, 3, -1, 1))
sketch18.addConstraint(Sketcher.Constraint("Symmetric", 9, 3, 23, 3, -1, 1))
sketch18.addConstraint(Sketcher.Constraint("Symmetric", 9, 3, 16, 3, -2))
sketch18.addConstraint(Sketcher.Constraint("Horizontal", 29, 3, 3, 1))
sketch18.addConstraint(Sketcher.Constraint("Horizontal", 3, 1, 6, 2))
sketch18.addConstraint(Sketcher.Constraint("Horizontal", 22, 3, 9, 1))
sketch18.addConstraint(Sketcher.Constraint("Horizontal", 9, 1, 14, 2))
sketch18.addConstraint(Sketcher.Constraint("Horizontal", 10, 1, 18, 1))
sketch18.addConstraint(Sketcher.Constraint("Horizontal", 13, 2, 21, 2))
sketch18.addConstraint(Sketcher.Constraint("Horizontal", 14, 2, 22, 2))
sketch18.addConstraint(Sketcher.Constraint("Horizontal", 2, 1, 25, 1))
sketch18.addConstraint(Sketcher.Constraint("Horizontal", 6, 2, 28, 2))
sketch18.addConstraint(Sketcher.Constraint("Horizontal", 7, 2, 29, 2))
sketch18.addConstraint(Sketcher.Constraint("Vertical", 2, 1, 10, 1))
sketch18.addConstraint(Sketcher.Constraint("Vertical", 7, 2, 13, 2))
sketch18.addConstraint(Sketcher.Constraint("Radius", 0, Q("2 mm")))
sketch18.addConstraint(Sketcher.Constraint("Radius", 2, Q("5 mm")))
sketch18.addConstraint(Sketcher.Constraint("Radius", 1, Q("57.324999 mm")))
sketch18.addConstraint(Sketcher.Constraint("DistanceY", 0, 2, -1, 1, Q("39.942691 mm")))
sketch18.addConstraint(Sketcher.Constraint("DistanceX", 5, 1, -1, 1, Q("39.942691 mm")))
sketch18.addConstraint(Sketcher.Constraint("DistanceX", 2, 1, -1, 1, Q("35.708892 mm")))
sketch18.addConstraint(Sketcher.Constraint("DistanceX", 7, 2, -1, 1, Q("37.830213 mm")))
pad7 = body.newObject("PartDesign::Pad", "Pad006")
pad7.Profile = sketch18
pad7.Length = 22
pad7.Reversed = True

# Sketch on XZ plane
sketch19 = body.newObject("Sketcher::SketchObject", "Sketch018")
sketch19.AttachmentSupport = (doc.getObject("XZ_Plane"), [""])
sketch19.MapMode = "FlatFace"
sketch19.AttachmentOffset = App.Placement(App.Vector(0, 0, -27), App.Rotation())
sketch19.addGeometry(Part.LineSegment(App.Vector(68.40972, -30.945306, 0), App.Vector(51.783141, -30.945306, 0)), False)
sketch19.addGeometry(Part.ArcOfCircle(Part.Circle(App.Vector(0, 0, 0), App.Vector(0, 0, 1), 60.325), math.radians(-30.862296), math.radians(32.487608)), False)
sketch19.addGeometry(Part.LineSegment(App.Vector(50.884598, 32.401594, 0), App.Vector(67.732108, 32.401594, 0)), False)
sketch19.addGeometry(Part.ArcOfCircle(Part.Circle(App.Vector(0, 0, 0), App.Vector(0, 0, 1), 75.083299), math.radians(-24.339735), math.radians(25.565457)), False)
sketch19.addConstraint(Sketcher.Constraint("Coincident", 0, 2, 1, 1))
sketch19.addConstraint(Sketcher.Constraint("Coincident", 1, 2, 2, 1))
sketch19.addConstraint(Sketcher.Constraint("Coincident", 2, 2, 3, 2))
sketch19.addConstraint(Sketcher.Constraint("Coincident", 3, 1, 0, 1))
sketch19.addConstraint(Sketcher.Constraint("Horizontal", 0))
sketch19.addConstraint(Sketcher.Constraint("Horizontal", 2))
sketch19.addConstraint(Sketcher.Constraint("Coincident", 1, 3, -1, 1))
sketch19.addConstraint(Sketcher.Constraint("Coincident", 3, 3, -1, 1))
sketch19.addConstraint(Sketcher.Constraint("Radius", 1, Q("60.325 mm")))
sketch19.addConstraint(Sketcher.Constraint("Radius", 3, Q("75.083299 mm")))
sketch19.addConstraint(Sketcher.Constraint("DistanceX", 0, 2, 0, 1, Q("16.62658 mm")))
sketch19.addConstraint(Sketcher.Constraint("DistanceX", 2, 1, 2, 2, Q("16.84751 mm")))
pocket12 = body.newObject("PartDesign::Pocket", "Pocket011")
pocket12.Profile = sketch19
pocket12.Length = 30
pocket12.Reversed = True

doc.recompute()
